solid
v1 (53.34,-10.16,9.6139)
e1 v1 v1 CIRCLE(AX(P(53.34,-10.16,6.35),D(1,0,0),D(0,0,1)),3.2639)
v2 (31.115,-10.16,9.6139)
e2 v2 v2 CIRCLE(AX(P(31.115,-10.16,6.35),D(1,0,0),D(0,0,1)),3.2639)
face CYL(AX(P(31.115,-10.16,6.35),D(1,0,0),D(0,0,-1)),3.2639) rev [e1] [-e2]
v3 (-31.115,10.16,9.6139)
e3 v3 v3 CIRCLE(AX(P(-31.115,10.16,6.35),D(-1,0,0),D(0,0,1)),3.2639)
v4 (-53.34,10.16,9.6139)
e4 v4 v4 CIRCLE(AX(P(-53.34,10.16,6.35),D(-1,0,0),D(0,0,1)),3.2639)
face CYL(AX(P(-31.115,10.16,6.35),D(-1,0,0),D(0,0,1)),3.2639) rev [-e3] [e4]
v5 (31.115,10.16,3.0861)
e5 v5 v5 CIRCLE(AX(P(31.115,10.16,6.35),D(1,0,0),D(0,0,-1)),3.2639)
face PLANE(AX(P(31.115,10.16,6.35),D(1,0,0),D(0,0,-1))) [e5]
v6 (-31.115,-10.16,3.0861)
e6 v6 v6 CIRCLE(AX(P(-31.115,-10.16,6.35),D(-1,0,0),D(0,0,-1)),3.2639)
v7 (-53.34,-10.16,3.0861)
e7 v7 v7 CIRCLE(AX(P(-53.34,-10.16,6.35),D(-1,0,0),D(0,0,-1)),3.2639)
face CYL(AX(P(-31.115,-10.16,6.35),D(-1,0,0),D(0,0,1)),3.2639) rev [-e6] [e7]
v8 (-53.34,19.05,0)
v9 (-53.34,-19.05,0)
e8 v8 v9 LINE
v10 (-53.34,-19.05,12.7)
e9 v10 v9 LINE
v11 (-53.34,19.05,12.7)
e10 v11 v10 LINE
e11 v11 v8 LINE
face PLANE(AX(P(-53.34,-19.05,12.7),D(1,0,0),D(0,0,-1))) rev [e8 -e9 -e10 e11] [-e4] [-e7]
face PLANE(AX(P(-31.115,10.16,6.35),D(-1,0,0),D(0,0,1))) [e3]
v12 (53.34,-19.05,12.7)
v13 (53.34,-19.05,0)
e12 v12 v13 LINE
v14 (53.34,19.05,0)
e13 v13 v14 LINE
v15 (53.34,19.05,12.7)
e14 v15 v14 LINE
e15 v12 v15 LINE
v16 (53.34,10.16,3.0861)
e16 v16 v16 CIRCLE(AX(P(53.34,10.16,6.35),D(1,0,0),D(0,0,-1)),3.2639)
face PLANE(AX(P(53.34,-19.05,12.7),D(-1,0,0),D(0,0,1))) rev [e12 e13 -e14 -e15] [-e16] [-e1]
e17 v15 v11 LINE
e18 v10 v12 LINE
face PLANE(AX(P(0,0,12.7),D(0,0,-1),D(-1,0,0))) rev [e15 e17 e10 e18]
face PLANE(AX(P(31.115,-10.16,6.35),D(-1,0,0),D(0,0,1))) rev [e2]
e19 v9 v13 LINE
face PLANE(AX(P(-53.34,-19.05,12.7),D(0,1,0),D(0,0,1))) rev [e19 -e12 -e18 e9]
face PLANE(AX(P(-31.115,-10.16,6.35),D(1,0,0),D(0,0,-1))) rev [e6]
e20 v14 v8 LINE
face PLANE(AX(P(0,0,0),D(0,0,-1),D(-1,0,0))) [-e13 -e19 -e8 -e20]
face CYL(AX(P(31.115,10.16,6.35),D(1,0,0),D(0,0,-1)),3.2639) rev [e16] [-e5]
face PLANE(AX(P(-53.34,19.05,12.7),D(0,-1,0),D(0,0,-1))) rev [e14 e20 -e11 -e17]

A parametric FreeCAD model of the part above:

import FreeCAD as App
import Part
import Sketcher

V = App.Vector
Q = App.Units.Quantity

doc = App.newDocument("Part")
body = doc.addObject("PartDesign::Body", "Body")

sketch1 = doc.addObject("Sketcher::SketchObject", "Sketch")
body.addObject(sketch1)
sketch1.AttachmentSupport = (doc.XY_Plane, [""])
sketch1.MapMode = "FlatFace"
sketch1.addGeometry([
    Part.LineSegment(V(-53, 19, 0), V(-53, -19, 0)),
    Part.LineSegment(V(-53, -19, 0), V(53, -19, 0)),
    Part.LineSegment(V(53, -19, 0), V(53, 19, 0)),
    Part.LineSegment(V(53, 19, 0), V(-53, 19, 0)),
], False)
sketch1.addConstraint([
    Sketcher.Constraint("Coincident", 0, 2, 1, 1),
    Sketcher.Constraint("Coincident", 1, 2, 2, 1),
    Sketcher.Constraint("Coincident", 2, 2, 3, 1),
    Sketcher.Constraint("Coincident", 3, 2, 0, 1),
    Sketcher.Constraint("Vertical", 0),
    Sketcher.Constraint("Horizontal", 1),
    Sketcher.Constraint("Vertical", 2),
    Sketcher.Constraint("Horizontal", 3),
    Sketcher.Constraint("Symmetric", 0, 2, 2, 2, -1, 1),
    Sketcher.Constraint("DistanceX", 1, 1, 1, 2, Q("4.2 in")),
    Sketcher.Constraint("DistanceY", 0, 2, 0, 1, Q("1.5 in")),
])
pad1 = doc.addObject("PartDesign::Pad", "Pad")
body.addObject(pad1)
pad1.Profile = sketch1
pad1.Length = Q("0.5 in")

sketch2 = doc.addObject("Sketcher::SketchObject", "Sketch001")
body.addObject(sketch2)
sketch2.AttachmentSupport = (doc.YZ_Plane, [""])
sketch2.MapMode = "FlatFace"
sketch2.AttachmentOffset = App.Placement(V(0, 0, 2.1 * 25.4), App.Rotation())
sketch2.addGeometry([
    Part.Circle(V(10.2, 6.3, 0), V(0, 0, 1), 3.3),
    Part.Circle(V(-10.2, 6.3, 0), V(0, 0, 1), 3.3),
], False)
sketch2.addConstraint([
    Sketcher.Constraint("Equal", 0, 1),
    Sketcher.Constraint("Symmetric", 0, 3, 1, 3, -2),
    Sketcher.Constraint("Diameter", 0, Q("0.257 in")),
    Sketcher.Constraint("DistanceX", -1, 1, 0, 3, Q("0.4 in")),
    Sketcher.Constraint("DistanceY", -1, 1, 0, 3, Q("0.25 in")),
])
pocket1 = doc.addObject("PartDesign::Pocket", "Pocket")
body.addObject(pocket1)
pocket1.Profile = sketch2
pocket1.Length = Q("0.875 in")

sketch3 = doc.addObject("Sketcher::SketchObject", "Sketch002")
body.addObject(sketch3)
sketch3.AttachmentSupport = (doc.YZ_Plane, [""])
sketch3.MapMode = "FlatFace"
sketch3.AttachmentOffset = App.Placement(V(0, 0, -1.225 * 25.4), App.Rotation())
sketch3.addGeometry([
    Part.Circle(V(10.2, 6.3, 0), V(0, 0, 1), 3.3),
    Part.Circle(V(-10.2, 6.3, 0), V(0, 0, 1), 3.3),
], False)
sketch3.addConstraint([
    Sketcher.Constraint("Equal", 0, 1),
    Sketcher.Constraint("Symmetric", 0, 3, 1, 3, -2),
    Sketcher.Constraint("Diameter", 0, Q("0.257 in")),
    Sketcher.Constraint("DistanceX", -1, 1, 0, 3, Q("0.4 in")),
    Sketcher.Constraint("DistanceY", -1, 1, 0, 3, Q("0.25 in")),
])
pocket2 = doc.addObject("PartDesign::Pocket", "Pocket001")
body.addObject(pocket2)
pocket2.Profile = sketch3
pocket2.Length = Q("0.875 in")

doc.recompute()
